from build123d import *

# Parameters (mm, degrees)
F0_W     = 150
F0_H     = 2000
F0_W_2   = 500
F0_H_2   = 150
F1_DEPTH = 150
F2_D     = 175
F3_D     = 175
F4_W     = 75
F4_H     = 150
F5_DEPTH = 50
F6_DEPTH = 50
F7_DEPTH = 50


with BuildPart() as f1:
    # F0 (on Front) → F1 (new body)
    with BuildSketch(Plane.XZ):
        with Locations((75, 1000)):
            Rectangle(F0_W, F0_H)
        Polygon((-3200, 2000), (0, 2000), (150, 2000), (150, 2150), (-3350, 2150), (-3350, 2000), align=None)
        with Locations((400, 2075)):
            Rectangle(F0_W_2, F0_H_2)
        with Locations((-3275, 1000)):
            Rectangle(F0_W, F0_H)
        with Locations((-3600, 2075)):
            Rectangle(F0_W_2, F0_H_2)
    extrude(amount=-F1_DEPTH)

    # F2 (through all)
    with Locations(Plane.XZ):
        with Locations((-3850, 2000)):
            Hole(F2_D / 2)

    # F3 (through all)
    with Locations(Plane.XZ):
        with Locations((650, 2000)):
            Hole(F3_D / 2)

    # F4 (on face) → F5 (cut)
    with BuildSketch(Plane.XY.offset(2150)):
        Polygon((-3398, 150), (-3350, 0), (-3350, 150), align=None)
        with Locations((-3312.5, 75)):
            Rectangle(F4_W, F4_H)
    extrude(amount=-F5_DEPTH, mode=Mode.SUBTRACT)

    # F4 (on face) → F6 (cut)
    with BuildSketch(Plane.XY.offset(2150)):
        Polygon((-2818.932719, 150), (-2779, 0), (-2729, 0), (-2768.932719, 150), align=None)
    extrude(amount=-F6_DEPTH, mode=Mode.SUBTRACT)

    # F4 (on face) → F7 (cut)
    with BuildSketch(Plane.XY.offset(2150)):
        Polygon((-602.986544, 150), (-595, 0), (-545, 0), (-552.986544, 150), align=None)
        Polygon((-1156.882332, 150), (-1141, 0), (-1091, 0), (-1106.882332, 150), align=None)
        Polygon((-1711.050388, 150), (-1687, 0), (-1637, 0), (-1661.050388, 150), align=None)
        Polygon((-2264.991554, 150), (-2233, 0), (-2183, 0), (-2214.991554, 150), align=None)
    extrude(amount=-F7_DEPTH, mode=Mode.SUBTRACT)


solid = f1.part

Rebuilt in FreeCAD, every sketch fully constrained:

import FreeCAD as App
import Part
import Sketcher


def add_polygon(sketch, points):
    """Adds a closed chain of lines whose ends are joined by coincident constraints."""
    first, n = sketch.GeometryCount, len(points)
    for a, b in zip(points, points[1:] + points[:1]):
        sketch.addGeometry(Part.LineSegment(App.Vector(*a, 0), App.Vector(*b, 0)), False)
    for i in range(n):
        sketch.addConstraint(Sketcher.Constraint("Coincident", first + i, 2, first + (i + 1) % n, 1))

doc = App.newDocument("Part")
body = doc.addObject("PartDesign::Body", "Body")

# Sketch on XZ plane
sketch1 = doc.addObject("Sketcher::SketchObject", "Sketch")
body.addObject(sketch1)
sketch1.AttachmentSupport = (doc.XZ_Plane, [""])
sketch1.MapMode = "FlatFace"
add_polygon(sketch1, [(0, 2000), (0, 0), (150, 0), (150, 2000), (650, 2000), (650, 2150), (-3850, 2150), (-3850, 2000), (-3350, 2000), (-3350, 0), (-3200, 0), (-3200, 2000)])  # lines 0-11
sketch1.addConstraint([
    Sketcher.Constraint("Vertical", 0),
    Sketcher.Constraint("Horizontal", 1),
    Sketcher.Constraint("Vertical", 2),
    Sketcher.Constraint("Horizontal", 3),
    Sketcher.Constraint("Vertical", 4),
    Sketcher.Constraint("Horizontal", 5),
    Sketcher.Constraint("Vertical", 6),
    Sketcher.Constraint("Horizontal", 7),
    Sketcher.Constraint("Vertical", 8),
    Sketcher.Constraint("Horizontal", 9),
    Sketcher.Constraint("Vertical", 10),
    Sketcher.Constraint("Horizontal", 11),
    Sketcher.Constraint("Coincident", 0, 2, -1, 1),
    Sketcher.Constraint("PointOnObject", 8, 2, -1),
    Sketcher.Constraint("Horizontal", 3, 2, 6, 2),
    Sketcher.Constraint("Horizontal", 7, 2, 10, 2),
    Sketcher.Constraint("Equal", 3, 7),
    Sketcher.Constraint("Equal", 1, 9),
    Sketcher.Constraint("Equal", 9, 4),
    Sketcher.Constraint("DistanceX", 1, 1, 1, 2, 150.0),
    Sketcher.Constraint("DistanceX", 3, 1, 3, 2, 500.0),
    Sketcher.Constraint("DistanceX", 5, 2, 5, 1, 4500.0),
    Sketcher.Constraint("DistanceY", 0, 2, 0, 1, 2000.0),
])
pad1 = doc.addObject("PartDesign::Pad", "Pad")
body.addObject(pad1)
pad1.Profile = sketch1
pad1.Length = 150
pad1.Reversed = True

# Sketch on XZ plane
sketch2 = doc.addObject("Sketcher::SketchObject", "Sketch001")
body.addObject(sketch2)
sketch2.AttachmentSupport = (doc.XZ_Plane, [""])
sketch2.MapMode = "FlatFace"
sketch2.addGeometry(Part.Circle(App.Vector(-3850, 2000, 0), App.Vector(0, 0, 1), 87.5), False)
sketch2.addConstraint([
    Sketcher.Constraint("Diameter", 0, 175.0),
    Sketcher.Constraint("DistanceX", 0, 3, -1, 1, 3850.0),
    Sketcher.Constraint("DistanceY", -1, 1, 0, 3, 2000.0),
])
doc.recompute()
hole = doc.addObject("PartDesign::Hole", "Hole")
body.addObject(hole)
hole.Profile = sketch2
hole.ThreadType = "None"
hole.Diameter = 175
hole.DepthType = "ThroughAll"

# Sketch on XZ plane
sketch3 = doc.addObject("Sketcher::SketchObject", "Sketch002")
body.addObject(sketch3)
sketch3.AttachmentSupport = (doc.XZ_Plane, [""])
sketch3.MapMode = "FlatFace"
sketch3.addGeometry(Part.Circle(App.Vector(650, 2000, 0), App.Vector(0, 0, 1), 87.5), False)
sketch3.addConstraint([
    Sketcher.Constraint("Diameter", 0, 175.0),
    Sketcher.Constraint("DistanceX", -1, 1, 0, 3, 650.0),
    Sketcher.Constraint("DistanceY", -1, 1, 0, 3, 2000.0),
])
doc.recompute()
hole2 = doc.addObject("PartDesign::Hole", "Hole001")
body.addObject(hole2)
hole2.Profile = sketch3
hole2.ThreadType = "None"
hole2.Diameter = 175
hole2.DepthType = "ThroughAll"

# Sketch on XY plane
sketch4 = doc.addObject("Sketcher::SketchObject", "Sketch003")
body.addObject(sketch4)
sketch4.AttachmentSupport = (doc.XY_Plane, [""])
sketch4.MapMode = "FlatFace"
sketch4.AttachmentOffset = App.Placement(App.Vector(0, 0, 2150), App.Rotation())
add_polygon(sketch4, [(-3398, 150), (-3350, 0), (-3275, 0), (-3275, 150)])  # lines 0-3
sketch4.addConstraint([
    Sketcher.Constraint("Horizontal", 1),
    Sketcher.Constraint("Vertical", 2),
    Sketcher.Constraint("Horizontal", 3),
    Sketcher.Constraint("PointOnObject", 0, 2, -1),
    Sketcher.Constraint("DistanceX", 1, 1, 1, 2, 75.0),
    Sketcher.Constraint("DistanceX", 3, 2, 3, 1, 123.0),
    Sketcher.Constraint("DistanceY", 2, 1, 2, 2, 150.0),
    Sketcher.Constraint("DistanceX", 0, 2, -1, 1, 3350.0),
])
pocket1 = doc.addObject("PartDesign::Pocket", "Pocket")
body.addObject(pocket1)
pocket1.Profile = sketch4
pocket1.Length = 50

# Sketch on XY plane
sketch5 = doc.addObject("Sketcher::SketchObject", "Sketch004")
body.addObject(sketch5)
sketch5.AttachmentSupport = (doc.XY_Plane, [""])
sketch5.MapMode = "FlatFace"
sketch5.AttachmentOffset = App.Placement(App.Vector(0, 0, 2150), App.Rotation())
add_polygon(sketch5, [(-2818.932719, 150), (-2779, 0), (-2729, 0), (-2768.932719, 150)])  # lines 0-3
sketch5.addConstraint([
    Sketcher.Constraint("Horizontal", 1),
    Sketcher.Constraint("Horizontal", 3),
    Sketcher.Constraint("PointOnObject", 0, 2, -1),
    Sketcher.Constraint("Parallel", 0, 2),
    Sketcher.Constraint("DistanceX", 1, 1, 1, 2, 50.0),
    Sketcher.Constraint("DistanceX", 0, 2, -1, 1, 2779.0),
    Sketcher.Constraint("DistanceY", -1, 1, 2, 2, 150.0),
    Sketcher.Constraint("DistanceX", 2, 2, -1, 1, 2768.932719),
])
pocket2 = doc.addObject("PartDesign::Pocket", "Pocket001")
body.addObject(pocket2)
pocket2.Profile = sketch5
pocket2.Length = 50

# Sketch on XY plane
sketch6 = doc.addObject("Sketcher::SketchObject", "Sketch005")
body.addObject(sketch6)
sketch6.AttachmentSupport = (doc.XY_Plane, [""])
sketch6.MapMode = "FlatFace"
sketch6.AttachmentOffset = App.Placement(App.Vector(0, 0, 2150), App.Rotation())
add_polygon(sketch6, [(-602.986544, 150), (-595, 0), (-545, 0), (-552.986544, 150)])  # lines 0-3
add_polygon(sketch6, [(-1156.882332, 150), (-1141, 0), (-1091, 0), (-1106.882332, 150)])  # lines 4-7
add_polygon(sketch6, [(-1711.050388, 150), (-1687, 0), (-1637, 0), (-1661.050388, 150)])  # lines 8-11
add_polygon(sketch6, [(-2264.991554, 150), (-2233, 0), (-2183, 0), (-2214.991554, 150)])  # lines 12-15
sketch6.addConstraint([
    Sketcher.Constraint("Horizontal", 1),
    Sketcher.Constraint("Horizontal", 3),
    Sketcher.Constraint("Horizontal", 5),
    Sketcher.Constraint("Horizontal", 7),
    Sketcher.Constraint("Horizontal", 9),
    Sketcher.Constraint("Horizontal", 11),
    Sketcher.Constraint("Horizontal", 13),
    Sketcher.Constraint("Horizontal", 15),
    Sketcher.Constraint("PointOnObject", 0, 2, -1),
    Sketcher.Constraint("PointOnObject", 4, 2, -1),
    Sketcher.Constraint("PointOnObject", 8, 2, -1),
    Sketcher.Constraint("PointOnObject", 12, 2, -1),
    Sketcher.Constraint("Parallel", 0, 2),
    Sketcher.Constraint("Parallel", 4, 6),
    Sketcher.Constraint("Parallel", 8, 10),
    Sketcher.Constraint("Parallel", 12, 14),
    Sketcher.Constraint("Horizontal", 3, 2, 6, 2),
    Sketcher.Constraint("Horizontal", 7, 2, 10, 2),
    Sketcher.Constraint("Horizontal", 11, 2, 14, 2),
    Sketcher.Constraint("Equal", 3, 5),
    Sketcher.Constraint("Equal", 7, 9),
    Sketcher.Constraint("Equal", 11, 13),
    Sketcher.Constraint("DistanceX", 1, 1, 1, 2, 50.0),
    Sketcher.Constraint("DistanceX", 0, 2, -1, 1, 595.0),
    Sketcher.Constraint("DistanceY", -1, 1, 2, 2, 150.0),
    Sketcher.Constraint("DistanceX", 4, 2, -1, 1, 1141.0),
    Sketcher.Constraint("DistanceX", 8, 2, -1, 1, 1687.0),
    Sketcher.Constraint("DistanceX", 12, 2, -1, 1, 2233.0),
    Sketcher.Constraint("DistanceX", 6, 2, -1, 1, 1106.882332),
    Sketcher.Constraint("DistanceX", 10, 2, -1, 1, 1661.050388),
    Sketcher.Constraint("Distance", 0, 150.212466),
    Sketcher.Constraint("Distance", 12, 153.373595),
])
pocket3 = doc.addObject("PartDesign::Pocket", "Pocket002")
body.addObject(pocket3)
pocket3.Profile = sketch6
pocket3.Length = 50

doc.recompute()
